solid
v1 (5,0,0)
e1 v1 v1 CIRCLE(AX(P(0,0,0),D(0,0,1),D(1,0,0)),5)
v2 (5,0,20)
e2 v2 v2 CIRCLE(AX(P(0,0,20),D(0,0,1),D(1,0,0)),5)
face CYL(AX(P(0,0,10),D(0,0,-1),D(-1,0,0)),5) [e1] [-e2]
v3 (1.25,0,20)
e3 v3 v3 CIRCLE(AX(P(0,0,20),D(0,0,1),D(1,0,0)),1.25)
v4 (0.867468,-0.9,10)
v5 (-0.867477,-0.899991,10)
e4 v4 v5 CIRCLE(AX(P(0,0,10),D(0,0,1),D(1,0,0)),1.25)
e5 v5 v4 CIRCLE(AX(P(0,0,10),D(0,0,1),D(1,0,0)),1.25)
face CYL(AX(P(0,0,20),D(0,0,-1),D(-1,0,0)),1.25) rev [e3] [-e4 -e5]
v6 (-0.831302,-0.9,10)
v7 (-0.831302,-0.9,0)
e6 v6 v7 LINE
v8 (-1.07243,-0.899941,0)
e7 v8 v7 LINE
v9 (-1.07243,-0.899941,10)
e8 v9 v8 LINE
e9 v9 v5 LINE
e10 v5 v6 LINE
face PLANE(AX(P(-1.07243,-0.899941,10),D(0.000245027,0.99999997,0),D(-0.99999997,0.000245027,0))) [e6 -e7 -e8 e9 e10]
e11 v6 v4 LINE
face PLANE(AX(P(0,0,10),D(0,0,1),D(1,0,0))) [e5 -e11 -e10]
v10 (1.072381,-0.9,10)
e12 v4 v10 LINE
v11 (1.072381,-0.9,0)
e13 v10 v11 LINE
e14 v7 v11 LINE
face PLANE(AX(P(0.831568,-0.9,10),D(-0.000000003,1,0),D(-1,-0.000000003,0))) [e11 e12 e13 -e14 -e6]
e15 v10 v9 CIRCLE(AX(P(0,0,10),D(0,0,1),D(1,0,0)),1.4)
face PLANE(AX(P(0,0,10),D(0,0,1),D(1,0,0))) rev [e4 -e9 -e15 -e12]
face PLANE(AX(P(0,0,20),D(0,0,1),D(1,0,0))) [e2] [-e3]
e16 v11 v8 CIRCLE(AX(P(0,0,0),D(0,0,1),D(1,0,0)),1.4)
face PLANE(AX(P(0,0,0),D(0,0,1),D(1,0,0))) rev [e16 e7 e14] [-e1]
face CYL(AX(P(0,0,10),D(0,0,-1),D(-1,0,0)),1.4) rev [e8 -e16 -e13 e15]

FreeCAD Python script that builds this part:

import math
import FreeCAD as App
import Part
import Sketcher

doc = App.newDocument("Part")
params = doc.addObject("Spreadsheet::Sheet", "Params")
for row, (alias, value) in enumerate([
    ("sketch1_diameter", "10 mm"),
    ("sketch1_radius", "1.4 mm"),
    ("pad1_length", "10 mm"),
    ("sketch2_diameter", "10 mm"),
    ("sketch2_diameter2", "2.5 mm"),
    ("pad2_length", "10 mm"),
], start=1):
    params.set(f"A{row}", alias)
    params.set(f"B{row}", "=" + value)
    params.setAlias(f"B{row}", alias)

body = doc.addObject("PartDesign::Body", "Body")

sketch1 = body.newObject("Sketcher::SketchObject", "Sketch")
sketch1.AttachmentSupport = (doc.getObject("XY_Plane"), [""])
sketch1.MapMode = "FlatFace"
sketch1.addGeometry(Part.Circle(App.Vector(0, 0, 0), App.Vector(0, 0, 1), 5), False)
sketch1.addGeometry(Part.LineSegment(App.Vector(-0.831302, -0.9, 0), App.Vector(-1.07243, -0.899941, 0)), False)
sketch1.addGeometry(Part.ArcOfCircle(Part.Circle(App.Vector(0, 0, 0), App.Vector(0, 0, 1), 1.4), math.radians(180), math.radians(220.002044)), False)
sketch1.addGeometry(Part.ArcOfCircle(Part.Circle(App.Vector(0, 0, 0), App.Vector(0, 0, 1), 1.4), math.radians(-40.005201), math.radians(180)), False)
sketch1.addGeometry(Part.LineSegment(App.Vector(1.072381, -0.9, 0), App.Vector(0.831568, -0.9, 0)), False)
sketch1.addGeometry(Part.LineSegment(App.Vector(0.831568, -0.9, 0), App.Vector(-0.831302, -0.9, 0)), False)
sketch1.addConstraint(Sketcher.Constraint("Coincident", 1, 2, 2, 2))
sketch1.addConstraint(Sketcher.Constraint("Tangent", 2, 1, 3, 2))
sketch1.addConstraint(Sketcher.Constraint("Coincident", 3, 1, 4, 1))
sketch1.addConstraint(Sketcher.Constraint("Coincident", 4, 2, 5, 1))
sketch1.addConstraint(Sketcher.Constraint("Coincident", 5, 2, 1, 1))
sketch1.addConstraint(Sketcher.Constraint("Horizontal", 4))
sketch1.addConstraint(Sketcher.Constraint("Horizontal", 5))
sketch1.addConstraint(Sketcher.Constraint("Coincident", 0, 3, -1, 1))
sketch1.addConstraint(Sketcher.Constraint("Coincident", 2, 3, -1, 1))
sketch1.addConstraint(Sketcher.Constraint("Equal", 2, 3))
sketch1.addConstraint(Sketcher.Constraint("PointOnObject", 2, 1, -1))
sketch1.addConstraint(Sketcher.Constraint("Diameter", 0, 10.0))
sketch1.addConstraint(Sketcher.Constraint("Radius", 2, 1.4))
sketch1.addConstraint(Sketcher.Constraint("DistanceY", 3, 1, -1, 1, 0.9))
sketch1.addConstraint(Sketcher.Constraint("DistanceX", 1, 2, 4, 2, 1.903999))
sketch1.addConstraint(Sketcher.Constraint("DistanceX", 5, 2, 5, 1, 1.66287))
sketch1.addConstraint(Sketcher.Constraint("DistanceX", 5, 2, -1, 1, 0.831302))
sketch1.setExpression("Constraints[11]", "Params.sketch1_diameter")
sketch1.setExpression("Constraints[12]", "Params.sketch1_radius")
pad1 = body.newObject("PartDesign::Pad", "Pad")
pad1.Profile = sketch1
pad1.setExpression("Length", "Params.pad1_length")

sketch2 = body.newObject("Sketcher::SketchObject", "Sketch001")
sketch2.AttachmentSupport = (doc.getObject("XY_Plane"), [""])
sketch2.MapMode = "FlatFace"
sketch2.AttachmentOffset = App.Placement(App.Vector(0, 0, 10), App.Rotation())
sketch2.addGeometry(Part.Circle(App.Vector(0, 0, 0), App.Vector(0, 0, 1), 5), False)
sketch2.addGeometry(Part.Circle(App.Vector(0, 0, 0), App.Vector(0, 0, 1), 1.25), False)
sketch2.addConstraint(Sketcher.Constraint("Coincident", 0, 3, -1, 1))
sketch2.addConstraint(Sketcher.Constraint("Coincident", 1, 3, -1, 1))
sketch2.addConstraint(Sketcher.Constraint("Diameter", 0, 10.0))
sketch2.addConstraint(Sketcher.Constraint("Diameter", 1, 2.5))
sketch2.setExpression("Constraints[2]", "Params.sketch2_diameter")
sketch2.setExpression("Constraints[3]", "Params.sketch2_diameter2")
pad2 = body.newObject("PartDesign::Pad", "Pad001")
pad2.Profile = sketch2
pad2.setExpression("Length", "Params.pad2_length")

doc.recompute()
